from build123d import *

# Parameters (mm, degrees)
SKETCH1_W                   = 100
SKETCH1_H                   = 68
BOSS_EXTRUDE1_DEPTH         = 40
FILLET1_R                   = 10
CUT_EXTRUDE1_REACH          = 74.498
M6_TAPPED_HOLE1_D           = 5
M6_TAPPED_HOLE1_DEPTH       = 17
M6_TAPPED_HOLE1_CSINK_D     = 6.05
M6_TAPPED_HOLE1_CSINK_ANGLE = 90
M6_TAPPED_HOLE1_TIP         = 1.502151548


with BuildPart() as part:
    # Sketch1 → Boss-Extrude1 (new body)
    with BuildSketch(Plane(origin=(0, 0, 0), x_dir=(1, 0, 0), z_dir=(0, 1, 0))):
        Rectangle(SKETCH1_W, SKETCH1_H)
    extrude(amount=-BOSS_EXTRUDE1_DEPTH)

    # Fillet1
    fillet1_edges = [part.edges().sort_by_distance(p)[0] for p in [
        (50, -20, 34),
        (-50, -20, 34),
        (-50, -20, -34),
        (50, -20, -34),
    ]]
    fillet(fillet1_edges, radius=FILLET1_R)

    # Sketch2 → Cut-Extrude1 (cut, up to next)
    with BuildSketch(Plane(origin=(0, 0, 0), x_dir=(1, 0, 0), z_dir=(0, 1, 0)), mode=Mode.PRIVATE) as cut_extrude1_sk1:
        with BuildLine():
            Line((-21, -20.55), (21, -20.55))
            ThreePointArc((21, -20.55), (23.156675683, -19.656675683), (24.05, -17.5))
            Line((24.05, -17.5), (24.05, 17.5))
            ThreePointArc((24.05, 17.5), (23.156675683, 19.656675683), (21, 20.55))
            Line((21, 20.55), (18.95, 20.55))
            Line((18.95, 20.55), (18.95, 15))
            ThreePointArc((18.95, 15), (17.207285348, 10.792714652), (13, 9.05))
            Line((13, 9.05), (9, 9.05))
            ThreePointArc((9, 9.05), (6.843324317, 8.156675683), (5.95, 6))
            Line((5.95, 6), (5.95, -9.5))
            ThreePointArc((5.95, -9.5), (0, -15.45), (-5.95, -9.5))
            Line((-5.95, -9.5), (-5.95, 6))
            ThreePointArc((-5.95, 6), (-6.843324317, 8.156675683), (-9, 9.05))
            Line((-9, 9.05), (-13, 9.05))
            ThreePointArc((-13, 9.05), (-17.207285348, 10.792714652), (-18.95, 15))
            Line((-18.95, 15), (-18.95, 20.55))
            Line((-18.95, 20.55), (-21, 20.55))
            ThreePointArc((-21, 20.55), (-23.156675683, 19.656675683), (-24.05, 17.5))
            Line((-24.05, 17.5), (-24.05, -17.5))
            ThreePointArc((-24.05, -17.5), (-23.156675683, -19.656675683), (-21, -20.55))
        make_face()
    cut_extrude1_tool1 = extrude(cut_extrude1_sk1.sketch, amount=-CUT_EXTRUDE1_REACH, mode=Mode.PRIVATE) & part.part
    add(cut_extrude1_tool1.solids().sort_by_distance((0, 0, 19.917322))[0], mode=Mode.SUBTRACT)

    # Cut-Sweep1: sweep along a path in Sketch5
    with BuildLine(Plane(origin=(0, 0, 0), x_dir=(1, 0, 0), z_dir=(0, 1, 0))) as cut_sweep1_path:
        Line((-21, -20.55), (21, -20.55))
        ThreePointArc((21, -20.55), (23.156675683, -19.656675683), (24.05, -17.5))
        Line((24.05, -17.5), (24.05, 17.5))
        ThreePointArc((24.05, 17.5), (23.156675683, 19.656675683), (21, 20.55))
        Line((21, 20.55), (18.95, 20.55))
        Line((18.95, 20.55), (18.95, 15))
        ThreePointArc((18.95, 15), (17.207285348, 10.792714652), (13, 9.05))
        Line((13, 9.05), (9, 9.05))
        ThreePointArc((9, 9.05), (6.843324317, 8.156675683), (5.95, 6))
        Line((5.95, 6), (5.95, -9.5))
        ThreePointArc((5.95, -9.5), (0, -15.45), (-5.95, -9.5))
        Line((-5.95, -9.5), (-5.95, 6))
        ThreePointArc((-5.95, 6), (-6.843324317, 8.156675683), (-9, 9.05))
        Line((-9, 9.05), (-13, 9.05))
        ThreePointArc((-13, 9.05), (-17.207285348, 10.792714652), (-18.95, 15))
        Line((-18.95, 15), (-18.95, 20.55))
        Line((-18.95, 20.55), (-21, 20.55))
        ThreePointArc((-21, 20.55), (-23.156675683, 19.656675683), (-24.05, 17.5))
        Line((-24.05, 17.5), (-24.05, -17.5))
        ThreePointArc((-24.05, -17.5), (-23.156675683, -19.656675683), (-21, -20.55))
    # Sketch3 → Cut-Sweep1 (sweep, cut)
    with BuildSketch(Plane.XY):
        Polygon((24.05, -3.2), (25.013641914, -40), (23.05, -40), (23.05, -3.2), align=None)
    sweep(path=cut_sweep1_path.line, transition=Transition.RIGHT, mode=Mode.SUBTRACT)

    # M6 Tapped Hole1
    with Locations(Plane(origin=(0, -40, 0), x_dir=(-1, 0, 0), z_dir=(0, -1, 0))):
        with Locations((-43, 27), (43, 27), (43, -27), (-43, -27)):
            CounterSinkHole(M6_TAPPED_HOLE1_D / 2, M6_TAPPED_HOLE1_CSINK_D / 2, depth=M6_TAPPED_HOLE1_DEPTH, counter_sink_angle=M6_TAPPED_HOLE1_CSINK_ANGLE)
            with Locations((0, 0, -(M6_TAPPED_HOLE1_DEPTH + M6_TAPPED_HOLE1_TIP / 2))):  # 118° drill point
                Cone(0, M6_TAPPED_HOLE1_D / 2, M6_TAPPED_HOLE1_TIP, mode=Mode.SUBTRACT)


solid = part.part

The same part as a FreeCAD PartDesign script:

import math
import FreeCAD as App
import Part
import Sketcher
from FreeCAD import Vector
Q = App.Units.Quantity


def edges_at(feature, points):
    """Names of the edges that pass closest to the given points."""
    edges = feature.Shape.Edges
    near = lambda p: min(range(len(edges)), key=lambda i: edges[i].distToShape(Part.Vertex(*p))[0])
    return sorted({f"Edge{near(p) + 1}" for p in points})

doc = App.newDocument("Part")
body = doc.addObject("PartDesign::Body", "Body")

# Sketch on XZ plane
sketch1 = body.newObject("Sketcher::SketchObject", "Sketch")
sketch1.AttachmentSupport = (doc.getObject("XZ_Plane"), [""])
sketch1.MapMode = "FlatFace"
sketch1.addGeometry([
    Part.LineSegment(Vector(-50, -34, 0), Vector(-50, 34, 0)),
    Part.LineSegment(Vector(-50, 34, 0), Vector(50, 34, 0)),
    Part.LineSegment(Vector(50, 34, 0), Vector(50, -34, 0)),
    Part.LineSegment(Vector(50, -34, 0), Vector(-50, -34, 0)),
], False)
sketch1.addConstraint([
    Sketcher.Constraint("Coincident", 0, 2, 1, 1),
    Sketcher.Constraint("Coincident", 1, 2, 2, 1),
    Sketcher.Constraint("Coincident", 2, 2, 3, 1),
    Sketcher.Constraint("Coincident", 3, 2, 0, 1),
    Sketcher.Constraint("Vertical", 0),
    Sketcher.Constraint("Horizontal", 1),
    Sketcher.Constraint("Vertical", 2),
    Sketcher.Constraint("Horizontal", 3),
    Sketcher.Constraint("Symmetric", 0, 2, 2, 2, -1, 1),
    Sketcher.Constraint("DistanceX", 1, 1, 1, 2, Q("100 mm")),
    Sketcher.Constraint("DistanceY", 0, 1, 0, 2, Q("68 mm")),
])
pad1 = body.newObject("PartDesign::Pad", "Pad")
pad1.Profile = sketch1
pad1.Length = 40
doc.recompute()

fillet = body.newObject("PartDesign::Fillet", "Fillet")
fillet.Base = (pad1, edges_at(pad1, [
    (50, -20, 34),
    (-50, -20, 34),
    (-50, -20, -34),
    (50, -20, -34),
]))
fillet.Radius = 10

# Sketch on XZ plane
sketch2 = body.newObject("Sketcher::SketchObject", "Sketch001")
sketch2.AttachmentSupport = (doc.getObject("XZ_Plane"), [""])
sketch2.MapMode = "FlatFace"
sketch2.addGeometry([
    Part.LineSegment(Vector(-21, 20.55, 0), Vector(21, 20.55, 0)),  # 0
    Part.ArcOfCircle(Part.Circle(Vector(21, 17.5, 0), Vector(0, 0, 1), 3.05), math.radians(0), math.radians(90)),  # 1
    Part.LineSegment(Vector(24.05, 17.5, 0), Vector(24.05, -17.5, 0)),  # 2
    Part.ArcOfCircle(Part.Circle(Vector(21, -17.5, 0), Vector(0, 0, 1), 3.05), math.radians(-90), math.radians(0)),  # 3
    Part.LineSegment(Vector(21, -20.55, 0), Vector(18.95, -20.55, 0)),  # 4
    Part.LineSegment(Vector(18.95, -20.55, 0), Vector(18.95, -15, 0)),  # 5
    Part.ArcOfCircle(Part.Circle(Vector(13, -15, 0), Vector(0, 0, 1), 5.95), math.radians(0), math.radians(90)),  # 6
    Part.LineSegment(Vector(13, -9.05, 0), Vector(9, -9.05, 0)),  # 7
    Part.ArcOfCircle(Part.Circle(Vector(9, -6, 0), Vector(0, 0, 1), 3.05), math.radians(180), math.radians(270)),  # 8
    Part.LineSegment(Vector(5.95, -6, 0), Vector(5.95, 9.5, 0)),  # 9
    Part.ArcOfCircle(Part.Circle(Vector(0, 9.5, 0), Vector(0, 0, 1), 5.95), math.radians(0), math.radians(180)),  # 10
    Part.LineSegment(Vector(-5.95, 9.5, 0), Vector(-5.95, -6, 0)),  # 11
    Part.ArcOfCircle(Part.Circle(Vector(-9, -6, 0), Vector(0, 0, 1), 3.05), math.radians(-90), math.radians(0)),  # 12
    Part.LineSegment(Vector(-9, -9.05, 0), Vector(-13, -9.05, 0)),  # 13
    Part.ArcOfCircle(Part.Circle(Vector(-13, -15, 0), Vector(0, 0, 1), 5.95), math.radians(90), math.radians(180)),  # 14
    Part.LineSegment(Vector(-18.95, -15, 0), Vector(-18.95, -20.55, 0)),  # 15
    Part.LineSegment(Vector(-18.95, -20.55, 0), Vector(-21, -20.55, 0)),  # 16
    Part.ArcOfCircle(Part.Circle(Vector(-21, -17.5, 0), Vector(0, 0, 1), 3.05), math.radians(180), math.radians(270)),  # 17
    Part.LineSegment(Vector(-24.05, -17.5, 0), Vector(-24.05, 17.5, 0)),  # 18
    Part.ArcOfCircle(Part.Circle(Vector(-21, 17.5, 0), Vector(0, 0, 1), 3.05), math.radians(90), math.radians(180)),  # 19
], False)
sketch2.addConstraint([
    Sketcher.Constraint("Tangent", 0, 2, 1, 2),
    Sketcher.Constraint("Tangent", 1, 1, 2, 1),
    Sketcher.Constraint("Tangent", 2, 2, 3, 2),
    Sketcher.Constraint("Tangent", 3, 1, 4, 1),
    Sketcher.Constraint("Coincident", 4, 2, 5, 1),
    Sketcher.Constraint("Tangent", 5, 2, 6, 1),
    Sketcher.Constraint("Tangent", 6, 2, 7, 1),
    Sketcher.Constraint("Tangent", 7, 2, 8, 2),
    Sketcher.Constraint("Tangent", 8, 1, 9, 1),
    Sketcher.Constraint("Tangent", 9, 2, 10, 1),
    Sketcher.Constraint("Tangent", 10, 2, 11, 1),
    Sketcher.Constraint("Tangent", 11, 2, 12, 2),
    Sketcher.Constraint("Tangent", 12, 1, 13, 1),
    Sketcher.Constraint("Tangent", 13, 2, 14, 1),
    Sketcher.Constraint("Tangent", 14, 2, 15, 1),
    Sketcher.Constraint("Coincident", 15, 2, 16, 1),
    Sketcher.Constraint("Tangent", 16, 2, 17, 2),
    Sketcher.Constraint("Tangent", 17, 1, 18, 1),
    Sketcher.Constraint("Tangent", 18, 2, 19, 2),
    Sketcher.Constraint("Tangent", 19, 1, 0, 1),
    Sketcher.Constraint("Horizontal", 0),
    Sketcher.Constraint("Vertical", 2),
    Sketcher.Constraint("Horizontal", 4),
    Sketcher.Constraint("Vertical", 5),
    Sketcher.Constraint("Horizontal", 7),
    Sketcher.Constraint("Vertical", 9),
    Sketcher.Constraint("Vertical", 11),
    Sketcher.Constraint("Horizontal", 13),
    Sketcher.Constraint("Vertical", 15),
    Sketcher.Constraint("Horizontal", 16),
    Sketcher.Constraint("Vertical", 18),
    Sketcher.Constraint("Equal", 1, 3),
    Sketcher.Constraint("Equal", 3, 8),
    Sketcher.Constraint("Equal", 6, 10),
    Sketcher.Constraint("Equal", 8, 12),
    Sketcher.Constraint("Equal", 10, 14),
    Sketcher.Constraint("Equal", 12, 17),
    Sketcher.Constraint("Equal", 17, 19),
    Sketcher.Constraint("Symmetric", 1, 3, 17, 3, -1, 1),
    Sketcher.Constraint("Symmetric", 8, 3, 12, 3, -2),
    Sketcher.Constraint("Symmetric", 4, 2, 15, 2, -2),
    Sketcher.Constraint("DistanceX", 0, 1, 0, 2, Q("42 mm")),
    Sketcher.Constraint("DistanceX", 7, 2, 7, 1, Q("4 mm")),
    Sketcher.Constraint("DistanceY", 2, 2, 2, 1, Q("35 mm")),
    Sketcher.Constraint("Radius", 1, Q("3.05 mm")),
    Sketcher.Constraint("Radius", 6, Q("5.95 mm")),
    Sketcher.Constraint("DistanceY", 9, 1, 9, 2, Q("15.5 mm")),
    Sketcher.Constraint("DistanceY", 6, 3, -1, 1, Q("15 mm")),
])
pocket1 = body.newObject("PartDesign::Pocket", "Pocket")
pocket1.Profile = sketch2
pocket1.Type = "UpToFirst"
pocket1.Reversed = True

# Sketch on XY plane
sketch3 = body.newObject("Sketcher::SketchObject", "Sketch002")
sketch3.AttachmentSupport = (doc.getObject("XY_Plane"), [""])
sketch3.MapMode = "FlatFace"
sketch3.addGeometry([
    Part.LineSegment(Vector(25.013642, -40, 0), Vector(24.05, -3.2, 0)),
    Part.LineSegment(Vector(24.05, -3.2, 0), Vector(23.05, -3.2, 0)),
    Part.LineSegment(Vector(23.05, -3.2, 0), Vector(23.05, -40, 0)),
    Part.LineSegment(Vector(23.05, -40, 0), Vector(25.013642, -40, 0)),
], False)
sketch3.addConstraint([
    Sketcher.Constraint("Coincident", 0, 2, 1, 1),
    Sketcher.Constraint("Coincident", 1, 2, 2, 1),
    Sketcher.Constraint("Coincident", 2, 2, 3, 1),
    Sketcher.Constraint("Coincident", 3, 2, 0, 1),
    Sketcher.Constraint("Horizontal", 1),
    Sketcher.Constraint("Vertical", 2),
    Sketcher.Constraint("Horizontal", 3),
    Sketcher.Constraint("DistanceX", 1, 2, 1, 1, Q("1 mm")),
    Sketcher.Constraint("DistanceY", 2, 2, 2, 1, Q("36.8 mm")),
    Sketcher.Constraint("DistanceY", 2, 2, -1, 1, Q("40 mm")),
    Sketcher.Constraint("Angle", 0, Q("91.5 deg")),
    Sketcher.Constraint("DistanceX", -1, 1, 0, 2, Q("24.05 mm")),
])

# Sketch on XZ plane
sketch4 = body.newObject("Sketcher::SketchObject", "Sketch003")
sketch4.AttachmentSupport = (doc.getObject("XZ_Plane"), [""])
sketch4.MapMode = "FlatFace"
sketch4.addGeometry([
    Part.LineSegment(Vector(-21, 20.55, 0), Vector(21, 20.55, 0)),  # 0
    Part.ArcOfCircle(Part.Circle(Vector(21, 17.5, 0), Vector(0, 0, 1), 3.05), math.radians(0), math.radians(90)),  # 1
    Part.LineSegment(Vector(24.05, 17.5, 0), Vector(24.05, -17.5, 0)),  # 2
    Part.ArcOfCircle(Part.Circle(Vector(21, -17.5, 0), Vector(0, 0, 1), 3.05), math.radians(-90), math.radians(0)),  # 3
    Part.LineSegment(Vector(21, -20.55, 0), Vector(18.95, -20.55, 0)),  # 4
    Part.LineSegment(Vector(18.95, -20.55, 0), Vector(18.95, -15, 0)),  # 5
    Part.ArcOfCircle(Part.Circle(Vector(13, -15, 0), Vector(0, 0, 1), 5.95), math.radians(0), math.radians(90)),  # 6
    Part.LineSegment(Vector(13, -9.05, 0), Vector(9, -9.05, 0)),  # 7
    Part.ArcOfCircle(Part.Circle(Vector(9, -6, 0), Vector(0, 0, 1), 3.05), math.radians(180), math.radians(270)),  # 8
    Part.LineSegment(Vector(5.95, -6, 0), Vector(5.95, 9.5, 0)),  # 9
    Part.ArcOfCircle(Part.Circle(Vector(0, 9.5, 0), Vector(0, 0, 1), 5.95), math.radians(0), math.radians(180)),  # 10
    Part.LineSegment(Vector(-5.95, 9.5, 0), Vector(-5.95, -6, 0)),  # 11
    Part.ArcOfCircle(Part.Circle(Vector(-9, -6, 0), Vector(0, 0, 1), 3.05), math.radians(-90), math.radians(0)),  # 12
    Part.LineSegment(Vector(-9, -9.05, 0), Vector(-13, -9.05, 0)),  # 13
    Part.ArcOfCircle(Part.Circle(Vector(-13, -15, 0), Vector(0, 0, 1), 5.95), math.radians(90), math.radians(180)),  # 14
    Part.LineSegment(Vector(-18.95, -15, 0), Vector(-18.95, -20.55, 0)),  # 15
    Part.LineSegment(Vector(-18.95, -20.55, 0), Vector(-21, -20.55, 0)),  # 16
    Part.ArcOfCircle(Part.Circle(Vector(-21, -17.5, 0), Vector(0, 0, 1), 3.05), math.radians(180), math.radians(270)),  # 17
    Part.LineSegment(Vector(-24.05, -17.5, 0), Vector(-24.05, 17.5, 0)),  # 18
    Part.ArcOfCircle(Part.Circle(Vector(-21, 17.5, 0), Vector(0, 0, 1), 3.05), math.radians(90), math.radians(180)),  # 19
], False)
sketch4.addConstraint([
    Sketcher.Constraint("Tangent", 0, 2, 1, 2),
    Sketcher.Constraint("Tangent", 1, 1, 2, 1),
    Sketcher.Constraint("Tangent", 2, 2, 3, 2),
    Sketcher.Constraint("Tangent", 3, 1, 4, 1),
    Sketcher.Constraint("Coincident", 4, 2, 5, 1),
    Sketcher.Constraint("Tangent", 5, 2, 6, 1),
    Sketcher.Constraint("Tangent", 6, 2, 7, 1),
    Sketcher.Constraint("Tangent", 7, 2, 8, 2),
    Sketcher.Constraint("Tangent", 8, 1, 9, 1),
    Sketcher.Constraint("Tangent", 9, 2, 10, 1),
    Sketcher.Constraint("Tangent", 10, 2, 11, 1),
    Sketcher.Constraint("Tangent", 11, 2, 12, 2),
    Sketcher.Constraint("Tangent", 12, 1, 13, 1),
    Sketcher.Constraint("Tangent", 13, 2, 14, 1),
    Sketcher.Constraint("Tangent", 14, 2, 15, 1),
    Sketcher.Constraint("Coincident", 15, 2, 16, 1),
    Sketcher.Constraint("Tangent", 16, 2, 17, 2),
    Sketcher.Constraint("Tangent", 17, 1, 18, 1),
    Sketcher.Constraint("Tangent", 18, 2, 19, 2),
    Sketcher.Constraint("Tangent", 19, 1, 0, 1),
    Sketcher.Constraint("Horizontal", 0),
    Sketcher.Constraint("Vertical", 2),
    Sketcher.Constraint("Horizontal", 4),
    Sketcher.Constraint("Vertical", 5),
    Sketcher.Constraint("Horizontal", 7),
    Sketcher.Constraint("Vertical", 9),
    Sketcher.Constraint("Vertical", 11),
    Sketcher.Constraint("Horizontal", 13),
    Sketcher.Constraint("Vertical", 15),
    Sketcher.Constraint("Horizontal", 16),
    Sketcher.Constraint("Vertical", 18),
    Sketcher.Constraint("Equal", 1, 3),
    Sketcher.Constraint("Equal", 3, 8),
    Sketcher.Constraint("Equal", 6, 10),
    Sketcher.Constraint("Equal", 8, 12),
    Sketcher.Constraint("Equal", 10, 14),
    Sketcher.Constraint("Equal", 12, 17),
    Sketcher.Constraint("Equal", 17, 19),
    Sketcher.Constraint("Symmetric", 1, 3, 17, 3, -1, 1),
    Sketcher.Constraint("Symmetric", 8, 3, 12, 3, -2),
    Sketcher.Constraint("Symmetric", 4, 2, 15, 2, -2),
    Sketcher.Constraint("DistanceX", 0, 1, 0, 2, Q("42 mm")),
    Sketcher.Constraint("DistanceX", 7, 2, 7, 1, Q("4 mm")),
    Sketcher.Constraint("DistanceY", 2, 2, 2, 1, Q("35 mm")),
    Sketcher.Constraint("Radius", 1, Q("3.05 mm")),
    Sketcher.Constraint("Radius", 6, Q("5.95 mm")),
    Sketcher.Constraint("DistanceY", 9, 1, 9, 2, Q("15.5 mm")),
    Sketcher.Constraint("DistanceY", 6, 3, -1, 1, Q("15 mm")),
])
doc.recompute()

subtractivepipe = body.newObject("PartDesign::SubtractivePipe", "SubtractivePipe")
subtractivepipe.Profile = sketch3
subtractivepipe.Spine = (sketch4, ["Edge1", "Edge2", "Edge3", "Edge4", "Edge5", "Edge6", "Edge7", "Edge8", "Edge9", "Edge10", "Edge11", "Edge12", "Edge13", "Edge14", "Edge15", "Edge16", "Edge17", "Edge18", "Edge19", "Edge20"])
subtractivepipe.Transition = "Right corner"

# Sketch on XZ plane
sketch5 = body.newObject("Sketcher::SketchObject", "Sketch004")
sketch5.AttachmentSupport = (doc.getObject("XZ_Plane"), [""])
sketch5.MapMode = "FlatFace"
sketch5.AttachmentOffset = App.Placement(Vector(0, 0, 40), App.Rotation())
sketch5.addGeometry([
    Part.Circle(Vector(43, -27, 0), Vector(0, 0, 1), 2.5),
    Part.Circle(Vector(-43, -27, 0), Vector(0, 0, 1), 2.5),
    Part.Circle(Vector(-43, 27, 0), Vector(0, 0, 1), 2.5),
    Part.Circle(Vector(43, 27, 0), Vector(0, 0, 1), 2.5),
], False)
sketch5.addConstraint([
    Sketcher.Constraint("Equal", 0, 1),
    Sketcher.Constraint("Equal", 1, 2),
    Sketcher.Constraint("Equal", 2, 3),
    Sketcher.Constraint("Symmetric", 0, 3, 2, 3, -1, 1),
    Sketcher.Constraint("Symmetric", 1, 3, 3, 3, -1, 1),
    Sketcher.Constraint("Symmetric", 0, 3, 1, 3, -2),
    Sketcher.Constraint("Diameter", 0, Q("5 mm")),
    Sketcher.Constraint("DistanceX", -1, 1, 0, 3, Q("43 mm")),
    Sketcher.Constraint("DistanceY", 0, 3, -1, 1, Q("27 mm")),
])
doc.recompute()
hole = body.newObject("PartDesign::Hole", "Hole")
hole.Profile = sketch5
hole.ThreadType = "None"
hole.Diameter = 5
hole.DepthType = "Dimension"
hole.Depth = 17
hole.DrillPoint = "Angled"
hole.DrillPointAngle = 118
hole.HoleCutType = "Countersink"
hole.HoleCutDiameter = 6.05
hole.HoleCutCountersinkAngle = 90

doc.recompute()
